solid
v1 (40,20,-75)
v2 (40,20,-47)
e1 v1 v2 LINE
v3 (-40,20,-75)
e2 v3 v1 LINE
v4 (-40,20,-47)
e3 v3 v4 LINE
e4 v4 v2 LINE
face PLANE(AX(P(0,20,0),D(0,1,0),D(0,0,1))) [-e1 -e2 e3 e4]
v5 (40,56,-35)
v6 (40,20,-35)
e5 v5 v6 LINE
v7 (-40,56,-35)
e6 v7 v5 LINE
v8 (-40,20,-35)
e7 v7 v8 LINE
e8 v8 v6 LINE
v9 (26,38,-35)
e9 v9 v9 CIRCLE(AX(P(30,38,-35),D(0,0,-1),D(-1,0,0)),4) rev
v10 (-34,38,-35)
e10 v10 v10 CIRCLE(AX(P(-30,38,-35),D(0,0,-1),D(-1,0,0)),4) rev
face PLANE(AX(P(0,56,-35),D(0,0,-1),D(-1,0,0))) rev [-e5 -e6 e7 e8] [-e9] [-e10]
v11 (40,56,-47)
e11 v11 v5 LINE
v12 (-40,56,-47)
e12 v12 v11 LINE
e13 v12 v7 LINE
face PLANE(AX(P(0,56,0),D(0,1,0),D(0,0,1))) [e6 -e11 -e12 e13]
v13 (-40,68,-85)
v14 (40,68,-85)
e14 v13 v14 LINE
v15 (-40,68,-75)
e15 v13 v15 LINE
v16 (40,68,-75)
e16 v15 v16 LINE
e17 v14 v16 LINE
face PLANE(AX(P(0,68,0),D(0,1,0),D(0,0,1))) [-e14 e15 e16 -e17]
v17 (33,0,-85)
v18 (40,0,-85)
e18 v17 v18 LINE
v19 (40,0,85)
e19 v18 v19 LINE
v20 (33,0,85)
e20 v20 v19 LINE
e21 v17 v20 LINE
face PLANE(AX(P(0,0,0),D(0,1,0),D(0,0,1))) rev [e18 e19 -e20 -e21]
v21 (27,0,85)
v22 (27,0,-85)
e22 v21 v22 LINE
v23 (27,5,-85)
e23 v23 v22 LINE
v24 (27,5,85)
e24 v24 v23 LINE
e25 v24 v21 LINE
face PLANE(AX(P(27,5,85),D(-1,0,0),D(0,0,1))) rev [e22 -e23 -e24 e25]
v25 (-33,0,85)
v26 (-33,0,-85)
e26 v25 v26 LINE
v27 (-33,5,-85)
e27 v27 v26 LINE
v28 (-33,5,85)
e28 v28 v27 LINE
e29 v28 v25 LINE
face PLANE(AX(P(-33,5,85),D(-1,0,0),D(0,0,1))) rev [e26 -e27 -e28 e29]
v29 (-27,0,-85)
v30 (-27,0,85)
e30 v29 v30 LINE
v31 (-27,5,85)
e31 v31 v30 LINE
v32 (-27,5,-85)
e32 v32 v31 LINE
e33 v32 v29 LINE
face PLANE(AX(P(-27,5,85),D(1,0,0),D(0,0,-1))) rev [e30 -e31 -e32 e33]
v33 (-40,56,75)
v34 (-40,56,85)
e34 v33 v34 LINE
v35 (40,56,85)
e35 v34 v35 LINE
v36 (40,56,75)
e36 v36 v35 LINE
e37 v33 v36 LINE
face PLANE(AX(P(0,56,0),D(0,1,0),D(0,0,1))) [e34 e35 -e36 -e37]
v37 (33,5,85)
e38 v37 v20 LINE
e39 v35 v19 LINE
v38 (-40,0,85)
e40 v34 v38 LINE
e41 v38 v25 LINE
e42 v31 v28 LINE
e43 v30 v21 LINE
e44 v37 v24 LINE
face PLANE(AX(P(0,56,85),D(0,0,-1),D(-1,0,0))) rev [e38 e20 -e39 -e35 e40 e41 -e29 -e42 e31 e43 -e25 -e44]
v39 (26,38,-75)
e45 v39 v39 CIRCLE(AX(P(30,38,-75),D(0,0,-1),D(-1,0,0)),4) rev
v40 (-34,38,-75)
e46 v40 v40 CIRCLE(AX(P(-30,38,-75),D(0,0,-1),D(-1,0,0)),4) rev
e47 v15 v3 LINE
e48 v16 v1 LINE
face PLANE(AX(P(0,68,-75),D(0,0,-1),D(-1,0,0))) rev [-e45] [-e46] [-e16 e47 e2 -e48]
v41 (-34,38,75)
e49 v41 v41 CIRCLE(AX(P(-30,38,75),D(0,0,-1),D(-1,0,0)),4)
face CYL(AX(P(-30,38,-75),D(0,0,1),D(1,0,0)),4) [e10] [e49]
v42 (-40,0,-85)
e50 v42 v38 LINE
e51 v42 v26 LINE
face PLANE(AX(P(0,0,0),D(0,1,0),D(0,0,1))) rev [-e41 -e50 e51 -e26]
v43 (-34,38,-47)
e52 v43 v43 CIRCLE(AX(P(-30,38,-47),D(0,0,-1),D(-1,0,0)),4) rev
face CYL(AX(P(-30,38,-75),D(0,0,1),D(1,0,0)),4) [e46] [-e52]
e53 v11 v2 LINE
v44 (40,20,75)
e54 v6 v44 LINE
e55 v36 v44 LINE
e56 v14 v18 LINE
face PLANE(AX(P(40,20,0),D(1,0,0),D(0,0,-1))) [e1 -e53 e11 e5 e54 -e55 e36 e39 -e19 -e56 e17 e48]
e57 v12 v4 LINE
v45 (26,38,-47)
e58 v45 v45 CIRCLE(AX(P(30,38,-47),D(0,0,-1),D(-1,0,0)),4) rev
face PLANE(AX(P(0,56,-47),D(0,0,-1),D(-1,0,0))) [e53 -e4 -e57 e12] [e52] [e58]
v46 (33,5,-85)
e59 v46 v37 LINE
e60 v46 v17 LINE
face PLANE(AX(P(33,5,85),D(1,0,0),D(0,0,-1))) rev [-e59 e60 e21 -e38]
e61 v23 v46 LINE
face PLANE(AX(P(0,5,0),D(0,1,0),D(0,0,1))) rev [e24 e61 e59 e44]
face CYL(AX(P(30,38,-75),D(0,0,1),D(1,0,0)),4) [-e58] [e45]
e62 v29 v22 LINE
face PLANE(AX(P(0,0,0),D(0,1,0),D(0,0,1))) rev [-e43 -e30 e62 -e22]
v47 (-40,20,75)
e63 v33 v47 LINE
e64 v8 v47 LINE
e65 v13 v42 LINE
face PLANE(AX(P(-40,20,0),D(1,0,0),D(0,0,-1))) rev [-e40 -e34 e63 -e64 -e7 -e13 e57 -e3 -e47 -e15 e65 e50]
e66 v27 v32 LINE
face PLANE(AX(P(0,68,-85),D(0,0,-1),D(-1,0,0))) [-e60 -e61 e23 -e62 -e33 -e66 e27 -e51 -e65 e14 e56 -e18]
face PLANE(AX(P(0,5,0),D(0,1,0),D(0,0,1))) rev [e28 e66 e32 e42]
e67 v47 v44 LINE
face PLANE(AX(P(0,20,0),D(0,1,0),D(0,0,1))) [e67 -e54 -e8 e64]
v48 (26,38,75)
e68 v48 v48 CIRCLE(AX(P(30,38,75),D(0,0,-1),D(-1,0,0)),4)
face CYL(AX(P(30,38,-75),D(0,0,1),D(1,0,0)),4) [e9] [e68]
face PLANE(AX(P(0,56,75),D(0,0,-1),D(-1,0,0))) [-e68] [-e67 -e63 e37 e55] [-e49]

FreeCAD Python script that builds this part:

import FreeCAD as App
import Part
import Sketcher
from FreeCAD import Vector
Q = App.Units.Quantity

doc = App.newDocument("Part")
params = doc.addObject("Spreadsheet::Sheet", "Params")
for row, (alias, value) in enumerate([
    ("sketch1_width", "80 mm"),
    ("sketch1_height", "110 mm"),
    ("pad1_length", "20 mm"),
    ("sketch2_width", "80 mm"),
    ("sketch2_height", "28 mm"),
    ("pad2_length", "20 mm"),
    ("sketch3_width", "80 mm"),
    ("sketch3_height", "10 mm"),
    ("sketch3_height2", "12 mm"),
    ("pad3_length", "56 mm"),
    ("sketch4_width", "80 mm"),
    ("sketch4_height", "10 mm"),
    ("pad4_length", "68 mm"),
    ("sketch5_diameter", "8 mm"),
    ("pad5_length", "150 mm"),
    ("sketch6_width", "6 mm"),
    ("sketch6_height", "170 mm"),
    ("pocket1_length", "5 mm"),
], start=1):
    params.set(f"A{row}", alias)
    params.set(f"B{row}", "=" + value)
    params.setAlias(f"B{row}", alias)

body = doc.addObject("PartDesign::Body", "Body")

sketch1 = body.newObject("Sketcher::SketchObject", "Sketch")
sketch1.AttachmentSupport = (doc.getObject("XZ_Plane"), [""])
sketch1.MapMode = "FlatFace"
sketch1.addGeometry(Part.LineSegment(Vector(-40, -35, 0), Vector(-40, 75, 0)), False)
sketch1.addGeometry(Part.LineSegment(Vector(-40, 75, 0), Vector(40, 75, 0)), False)
sketch1.addGeometry(Part.LineSegment(Vector(40, 75, 0), Vector(40, -35, 0)), False)
sketch1.addGeometry(Part.LineSegment(Vector(40, -35, 0), Vector(-40, -35, 0)), False)
sketch1.addConstraint(Sketcher.Constraint("Coincident", 0, 2, 1, 1))
sketch1.addConstraint(Sketcher.Constraint("Coincident", 1, 2, 2, 1))
sketch1.addConstraint(Sketcher.Constraint("Coincident", 2, 2, 3, 1))
sketch1.addConstraint(Sketcher.Constraint("Coincident", 3, 2, 0, 1))
sketch1.addConstraint(Sketcher.Constraint("Vertical", 0))
sketch1.addConstraint(Sketcher.Constraint("Horizontal", 1))
sketch1.addConstraint(Sketcher.Constraint("Vertical", 2))
sketch1.addConstraint(Sketcher.Constraint("Horizontal", 3))
sketch1.addConstraint(Sketcher.Constraint("DistanceX", 1, 1, 1, 2, Q("80 mm")))
sketch1.addConstraint(Sketcher.Constraint("DistanceY", 0, 1, 0, 2, Q("110 mm")))
sketch1.addConstraint(Sketcher.Constraint("DistanceX", 0, 2, -1, 1, Q("40 mm")))
sketch1.addConstraint(Sketcher.Constraint("DistanceY", -1, 1, 0, 2, Q("75 mm")))
sketch1.setExpression("Constraints[8]", "Params.sketch1_width")
sketch1.setExpression("Constraints[9]", "Params.sketch1_height")
pad1 = body.newObject("PartDesign::Pad", "Pad")
pad1.Profile = sketch1
pad1.setExpression("Length", "Params.pad1_length")
pad1.Reversed = True
body2 = doc.addObject("PartDesign::Body", "Body001")

sketch2 = body2.newObject("Sketcher::SketchObject", "Sketch001")
sketch2.AttachmentSupport = (doc.getObject("XZ_Plane001"), [""])
sketch2.MapMode = "FlatFace"
sketch2.addGeometry(Part.LineSegment(Vector(-40, -75, 0), Vector(-40, -47, 0)), False)
sketch2.addGeometry(Part.LineSegment(Vector(-40, -47, 0), Vector(40, -47, 0)), False)
sketch2.addGeometry(Part.LineSegment(Vector(40, -47, 0), Vector(40, -75, 0)), False)
sketch2.addGeometry(Part.LineSegment(Vector(40, -75, 0), Vector(-40, -75, 0)), False)
sketch2.addConstraint(Sketcher.Constraint("Coincident", 0, 2, 1, 1))
sketch2.addConstraint(Sketcher.Constraint("Coincident", 1, 2, 2, 1))
sketch2.addConstraint(Sketcher.Constraint("Coincident", 2, 2, 3, 1))
sketch2.addConstraint(Sketcher.Constraint("Coincident", 3, 2, 0, 1))
sketch2.addConstraint(Sketcher.Constraint("Vertical", 0))
sketch2.addConstraint(Sketcher.Constraint("Horizontal", 1))
sketch2.addConstraint(Sketcher.Constraint("Vertical", 2))
sketch2.addConstraint(Sketcher.Constraint("Horizontal", 3))
sketch2.addConstraint(Sketcher.Constraint("DistanceX", 1, 1, 1, 2, Q("80 mm")))
sketch2.addConstraint(Sketcher.Constraint("DistanceY", 0, 1, 0, 2, Q("28 mm")))
sketch2.addConstraint(Sketcher.Constraint("DistanceX", 0, 2, -1, 1, Q("40 mm")))
sketch2.addConstraint(Sketcher.Constraint("DistanceY", 0, 2, -1, 1, Q("47 mm")))
sketch2.setExpression("Constraints[8]", "Params.sketch2_width")
sketch2.setExpression("Constraints[9]", "Params.sketch2_height")
pad2 = body2.newObject("PartDesign::Pad", "Pad001")
pad2.Profile = sketch2
pad2.setExpression("Length", "Params.pad2_length")
pad2.Reversed = True
body.AllowCompound = True
doc.recompute()

boolean = body.newObject("PartDesign::Boolean", "Boolean")
boolean.Type = "Fuse"
boolean.addObjects([body2])

sketch3 = body.newObject("Sketcher::SketchObject", "Sketch002")
sketch3.AttachmentSupport = (doc.getObject("XZ_Plane"), [""])
sketch3.MapMode = "FlatFace"
sketch3.addGeometry(Part.LineSegment(Vector(-40, 75, 0), Vector(-40, 85, 0)), False)
sketch3.addGeometry(Part.LineSegment(Vector(-40, 85, 0), Vector(40, 85, 0)), False)
sketch3.addGeometry(Part.LineSegment(Vector(40, 85, 0), Vector(40, 75, 0)), False)
sketch3.addGeometry(Part.LineSegment(Vector(40, 75, 0), Vector(-40, 75, 0)), False)
sketch3.addGeometry(Part.LineSegment(Vector(-40, -47, 0), Vector(-40, -35, 0)), False)
sketch3.addGeometry(Part.LineSegment(Vector(-40, -35, 0), Vector(40, -35, 0)), False)
sketch3.addGeometry(Part.LineSegment(Vector(40, -35, 0), Vector(40, -47, 0)), False)
sketch3.addGeometry(Part.LineSegment(Vector(40, -47, 0), Vector(-40, -47, 0)), False)
sketch3.addConstraint(Sketcher.Constraint("Coincident", 0, 2, 1, 1))
sketch3.addConstraint(Sketcher.Constraint("Coincident", 1, 2, 2, 1))
sketch3.addConstraint(Sketcher.Constraint("Coincident", 2, 2, 3, 1))
sketch3.addConstraint(Sketcher.Constraint("Coincident", 3, 2, 0, 1))
sketch3.addConstraint(Sketcher.Constraint("Coincident", 4, 2, 5, 1))
sketch3.addConstraint(Sketcher.Constraint("Coincident", 5, 2, 6, 1))
sketch3.addConstraint(Sketcher.Constraint("Coincident", 6, 2, 7, 1))
sketch3.addConstraint(Sketcher.Constraint("Coincident", 7, 2, 4, 1))
sketch3.addConstraint(Sketcher.Constraint("Vertical", 0))
sketch3.addConstraint(Sketcher.Constraint("Horizontal", 1))
sketch3.addConstraint(Sketcher.Constraint("Vertical", 2))
sketch3.addConstraint(Sketcher.Constraint("Horizontal", 3))
sketch3.addConstraint(Sketcher.Constraint("Vertical", 4))
sketch3.addConstraint(Sketcher.Constraint("Horizontal", 5))
sketch3.addConstraint(Sketcher.Constraint("Vertical", 6))
sketch3.addConstraint(Sketcher.Constraint("Horizontal", 7))
sketch3.addConstraint(Sketcher.Constraint("Vertical", 3, 2, 4, 2))
sketch3.addConstraint(Sketcher.Constraint("Vertical", 2, 2, 5, 2))
sketch3.addConstraint(Sketcher.Constraint("DistanceX", 1, 1, 1, 2, Q("80 mm")))
sketch3.addConstraint(Sketcher.Constraint("DistanceY", 0, 1, 0, 2, Q("10 mm")))
sketch3.addConstraint(Sketcher.Constraint("DistanceY", 4, 1, 4, 2, Q("12 mm")))
sketch3.addConstraint(Sketcher.Constraint("DistanceX", 0, 2, -1, 1, Q("40 mm")))
sketch3.addConstraint(Sketcher.Constraint("DistanceY", -1, 1, 0, 2, Q("85 mm")))
sketch3.addConstraint(Sketcher.Constraint("DistanceY", 4, 2, -1, 1, Q("35 mm")))
sketch3.setExpression("Constraints[18]", "Params.sketch3_width")
sketch3.setExpression("Constraints[19]", "Params.sketch3_height")
sketch3.setExpression("Constraints[20]", "Params.sketch3_height2")
pad3 = body.newObject("PartDesign::Pad", "Pad002")
pad3.Profile = sketch3
pad3.setExpression("Length", "Params.pad3_length")
pad3.Reversed = True

sketch4 = body.newObject("Sketcher::SketchObject", "Sketch003")
sketch4.AttachmentSupport = (doc.getObject("XZ_Plane"), [""])
sketch4.MapMode = "FlatFace"
sketch4.addGeometry(Part.LineSegment(Vector(-40, -85, 0), Vector(-40, -75, 0)), False)
sketch4.addGeometry(Part.LineSegment(Vector(-40, -75, 0), Vector(40, -75, 0)), False)
sketch4.addGeometry(Part.LineSegment(Vector(40, -75, 0), Vector(40, -85, 0)), False)
sketch4.addGeometry(Part.LineSegment(Vector(40, -85, 0), Vector(-40, -85, 0)), False)
sketch4.addConstraint(Sketcher.Constraint("Coincident", 0, 2, 1, 1))
sketch4.addConstraint(Sketcher.Constraint("Coincident", 1, 2, 2, 1))
sketch4.addConstraint(Sketcher.Constraint("Coincident", 2, 2, 3, 1))
sketch4.addConstraint(Sketcher.Constraint("Coincident", 3, 2, 0, 1))
sketch4.addConstraint(Sketcher.Constraint("Vertical", 0))
sketch4.addConstraint(Sketcher.Constraint("Horizontal", 1))
sketch4.addConstraint(Sketcher.Constraint("Vertical", 2))
sketch4.addConstraint(Sketcher.Constraint("Horizontal", 3))
sketch4.addConstraint(Sketcher.Constraint("DistanceX", 1, 1, 1, 2, Q("80 mm")))
sketch4.addConstraint(Sketcher.Constraint("DistanceY", 0, 1, 0, 2, Q("10 mm")))
sketch4.addConstraint(Sketcher.Constraint("DistanceX", 0, 2, -1, 1, Q("40 mm")))
sketch4.addConstraint(Sketcher.Constraint("DistanceY", 0, 2, -1, 1, Q("75 mm")))
sketch4.setExpression("Constraints[8]", "Params.sketch4_width")
sketch4.setExpression("Constraints[9]", "Params.sketch4_height")
pad4 = body.newObject("PartDesign::Pad", "Pad003")
pad4.Profile = sketch4
pad4.setExpression("Length", "Params.pad4_length")
pad4.Reversed = True

sketch5 = body.newObject("Sketcher::SketchObject", "Sketch004")
sketch5.AttachmentSupport = (doc.getObject("XY_Plane"), [""])
sketch5.MapMode = "FlatFace"
sketch5.AttachmentOffset = App.Placement(Vector(0, 0, 75), App.Rotation())
sketch5.addGeometry(Part.Circle(Vector(30, 38, 0), Vector(0, 0, 1), 4), False)
sketch5.addGeometry(Part.Circle(Vector(-30, 38, 0), Vector(0, 0, 1), 4), False)
sketch5.addConstraint(Sketcher.Constraint("Equal", 0, 1))
sketch5.addConstraint(Sketcher.Constraint("Symmetric", 0, 3, 1, 3, -2))
sketch5.addConstraint(Sketcher.Constraint("Diameter", 0, Q("8 mm")))
sketch5.addConstraint(Sketcher.Constraint("DistanceX", -1, 1, 0, 3, Q("30 mm")))
sketch5.addConstraint(Sketcher.Constraint("DistanceY", -1, 1, 0, 3, Q("38 mm")))
sketch5.setExpression("Constraints[2]", "Params.sketch5_diameter")
pad5 = body.newObject("PartDesign::Pad", "Pad004")
pad5.Profile = sketch5
pad5.setExpression("Length", "Params.pad5_length")
pad5.Reversed = True

sketch6 = body.newObject("Sketcher::SketchObject", "Sketch005")
sketch6.AttachmentSupport = (doc.getObject("XZ_Plane"), [""])
sketch6.MapMode = "FlatFace"
sketch6.addGeometry(Part.LineSegment(Vector(-33, 85, 0), Vector(-33, -85, 0)), False)
sketch6.addGeometry(Part.LineSegment(Vector(-33, -85, 0), Vector(-27, -85, 0)), False)
sketch6.addGeometry(Part.LineSegment(Vector(-27, -85, 0), Vector(-27, 85, 0)), False)
sketch6.addGeometry(Part.LineSegment(Vector(-27, 85, 0), Vector(-33, 85, 0)), False)
sketch6.addGeometry(Part.LineSegment(Vector(27, 85, 0), Vector(27, -85, 0)), False)
sketch6.addGeometry(Part.LineSegment(Vector(27, -85, 0), Vector(33, -85, 0)), False)
sketch6.addGeometry(Part.LineSegment(Vector(33, -85, 0), Vector(33, 85, 0)), False)
sketch6.addGeometry(Part.LineSegment(Vector(33, 85, 0), Vector(27, 85, 0)), False)
sketch6.addConstraint(Sketcher.Constraint("Coincident", 0, 2, 1, 1))
sketch6.addConstraint(Sketcher.Constraint("Coincident", 1, 2, 2, 1))
sketch6.addConstraint(Sketcher.Constraint("Coincident", 2, 2, 3, 1))
sketch6.addConstraint(Sketcher.Constraint("Coincident", 3, 2, 0, 1))
sketch6.addConstraint(Sketcher.Constraint("Coincident", 4, 2, 5, 1))
sketch6.addConstraint(Sketcher.Constraint("Coincident", 5, 2, 6, 1))
sketch6.addConstraint(Sketcher.Constraint("Coincident", 6, 2, 7, 1))
sketch6.addConstraint(Sketcher.Constraint("Coincident", 7, 2, 4, 1))
sketch6.addConstraint(Sketcher.Constraint("Vertical", 0))
sketch6.addConstraint(Sketcher.Constraint("Horizontal", 1))
sketch6.addConstraint(Sketcher.Constraint("Vertical", 2))
sketch6.addConstraint(Sketcher.Constraint("Horizontal", 3))
sketch6.addConstraint(Sketcher.Constraint("Vertical", 4))
sketch6.addConstraint(Sketcher.Constraint("Horizontal", 5))
sketch6.addConstraint(Sketcher.Constraint("Vertical", 6))
sketch6.addConstraint(Sketcher.Constraint("Horizontal", 7))
sketch6.addConstraint(Sketcher.Constraint("Symmetric", 2, 2, 4, 2, -1, 1))
sketch6.addConstraint(Sketcher.Constraint("Symmetric", 0, 2, 6, 2, -1, 1))
sketch6.addConstraint(Sketcher.Constraint("Horizontal", 1, 2, 4, 2))
sketch6.addConstraint(Sketcher.Constraint("DistanceX", 1, 1, 1, 2, Q("6 mm")))
sketch6.addConstraint(Sketcher.Constraint("DistanceY", 0, 2, 0, 1, Q("170 mm")))
sketch6.addConstraint(Sketcher.Constraint("DistanceX", 0, 2, -1, 1, Q("33 mm")))
sketch6.setExpression("Constraints[19]", "Params.sketch6_width")
sketch6.setExpression("Constraints[20]", "Params.sketch6_height")
pocket1 = body.newObject("PartDesign::Pocket", "Pocket")
pocket1.Profile = sketch6
pocket1.setExpression("Length", "Params.pocket1_length")

doc.recompute()
